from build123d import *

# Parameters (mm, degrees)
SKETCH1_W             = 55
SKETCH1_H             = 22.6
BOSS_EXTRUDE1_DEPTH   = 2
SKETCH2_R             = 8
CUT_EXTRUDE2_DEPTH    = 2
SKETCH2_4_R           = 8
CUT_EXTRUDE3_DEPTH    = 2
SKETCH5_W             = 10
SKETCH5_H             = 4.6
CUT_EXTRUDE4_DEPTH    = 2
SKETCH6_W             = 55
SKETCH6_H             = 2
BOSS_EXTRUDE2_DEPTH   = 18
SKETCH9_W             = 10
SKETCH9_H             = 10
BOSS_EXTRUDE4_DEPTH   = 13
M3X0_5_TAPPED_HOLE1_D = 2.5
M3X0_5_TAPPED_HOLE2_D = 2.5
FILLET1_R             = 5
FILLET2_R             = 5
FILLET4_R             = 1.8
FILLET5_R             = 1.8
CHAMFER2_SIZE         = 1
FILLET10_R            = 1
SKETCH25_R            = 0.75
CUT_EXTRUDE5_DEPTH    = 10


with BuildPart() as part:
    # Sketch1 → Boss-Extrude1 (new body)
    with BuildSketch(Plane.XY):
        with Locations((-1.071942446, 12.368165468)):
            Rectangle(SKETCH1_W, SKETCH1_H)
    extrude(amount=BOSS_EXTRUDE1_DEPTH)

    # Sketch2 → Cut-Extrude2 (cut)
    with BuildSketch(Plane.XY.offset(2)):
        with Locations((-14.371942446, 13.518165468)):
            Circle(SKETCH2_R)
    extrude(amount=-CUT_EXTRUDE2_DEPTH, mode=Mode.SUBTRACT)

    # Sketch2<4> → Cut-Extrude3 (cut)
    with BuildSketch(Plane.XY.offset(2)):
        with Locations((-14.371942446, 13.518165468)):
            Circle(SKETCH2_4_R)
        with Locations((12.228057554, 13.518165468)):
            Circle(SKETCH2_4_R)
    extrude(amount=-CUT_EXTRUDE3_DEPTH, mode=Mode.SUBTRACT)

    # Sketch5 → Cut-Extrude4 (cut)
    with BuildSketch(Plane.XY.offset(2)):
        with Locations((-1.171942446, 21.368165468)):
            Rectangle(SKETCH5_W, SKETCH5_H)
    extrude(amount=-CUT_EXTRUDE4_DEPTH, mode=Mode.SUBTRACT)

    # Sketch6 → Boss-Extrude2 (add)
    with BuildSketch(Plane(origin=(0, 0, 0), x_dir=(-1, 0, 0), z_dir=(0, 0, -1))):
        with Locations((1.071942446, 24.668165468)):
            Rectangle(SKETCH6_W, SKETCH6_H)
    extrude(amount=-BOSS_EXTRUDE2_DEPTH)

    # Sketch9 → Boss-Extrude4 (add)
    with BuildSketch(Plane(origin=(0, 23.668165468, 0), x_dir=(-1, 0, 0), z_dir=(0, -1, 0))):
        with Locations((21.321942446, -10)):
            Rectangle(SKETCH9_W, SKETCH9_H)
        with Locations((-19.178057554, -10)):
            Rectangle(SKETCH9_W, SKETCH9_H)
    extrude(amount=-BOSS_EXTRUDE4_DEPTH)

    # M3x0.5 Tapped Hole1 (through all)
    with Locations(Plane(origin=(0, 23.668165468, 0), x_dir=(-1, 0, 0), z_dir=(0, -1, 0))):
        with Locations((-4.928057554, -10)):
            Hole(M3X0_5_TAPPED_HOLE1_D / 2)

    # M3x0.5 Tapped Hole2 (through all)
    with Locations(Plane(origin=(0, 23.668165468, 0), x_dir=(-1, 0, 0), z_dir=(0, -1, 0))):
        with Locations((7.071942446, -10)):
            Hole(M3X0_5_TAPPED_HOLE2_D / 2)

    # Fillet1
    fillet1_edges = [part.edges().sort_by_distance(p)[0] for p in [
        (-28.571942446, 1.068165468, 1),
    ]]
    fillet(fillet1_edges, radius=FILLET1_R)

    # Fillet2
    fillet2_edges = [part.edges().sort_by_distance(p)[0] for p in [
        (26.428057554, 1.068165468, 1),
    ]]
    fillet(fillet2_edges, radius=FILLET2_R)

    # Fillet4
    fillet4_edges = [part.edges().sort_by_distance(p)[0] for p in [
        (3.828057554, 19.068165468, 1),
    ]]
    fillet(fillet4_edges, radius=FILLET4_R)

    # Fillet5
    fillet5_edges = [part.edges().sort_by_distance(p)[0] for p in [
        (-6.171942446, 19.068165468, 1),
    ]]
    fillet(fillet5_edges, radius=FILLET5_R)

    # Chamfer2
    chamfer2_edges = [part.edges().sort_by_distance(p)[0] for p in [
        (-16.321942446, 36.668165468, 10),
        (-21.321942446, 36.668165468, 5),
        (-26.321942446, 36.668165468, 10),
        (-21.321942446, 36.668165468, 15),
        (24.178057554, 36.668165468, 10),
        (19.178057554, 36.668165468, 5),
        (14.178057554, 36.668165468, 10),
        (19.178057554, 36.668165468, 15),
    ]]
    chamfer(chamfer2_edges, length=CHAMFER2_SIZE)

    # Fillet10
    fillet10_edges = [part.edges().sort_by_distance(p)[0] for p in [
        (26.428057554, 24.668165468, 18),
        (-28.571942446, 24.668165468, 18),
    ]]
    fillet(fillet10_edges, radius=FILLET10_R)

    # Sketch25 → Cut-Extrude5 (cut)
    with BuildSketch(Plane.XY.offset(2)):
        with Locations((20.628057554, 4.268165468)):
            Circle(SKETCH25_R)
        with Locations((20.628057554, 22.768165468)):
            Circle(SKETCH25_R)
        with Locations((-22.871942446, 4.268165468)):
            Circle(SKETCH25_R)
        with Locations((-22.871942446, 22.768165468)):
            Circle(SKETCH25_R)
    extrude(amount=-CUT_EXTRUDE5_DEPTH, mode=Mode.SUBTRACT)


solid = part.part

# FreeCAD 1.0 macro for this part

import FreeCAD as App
import Part
import Sketcher

V = App.Vector
Q = App.Units.Quantity


def edges_at(feature, points):
    """Names of the edges that pass closest to the given points."""
    edges = feature.Shape.Edges
    near = lambda p: min(range(len(edges)), key=lambda i: edges[i].distToShape(Part.Vertex(*p))[0])
    return sorted({f"Edge{near(p) + 1}" for p in points})


def add_polygon(sketch, points):
    """Adds a closed chain of lines whose ends are joined by coincident constraints."""
    first, n = sketch.GeometryCount, len(points)
    for a, b in zip(points, points[1:] + points[:1]):
        sketch.addGeometry(Part.LineSegment(App.Vector(*a, 0), App.Vector(*b, 0)), False)
    for i in range(n):
        sketch.addConstraint(Sketcher.Constraint("Coincident", first + i, 2, first + (i + 1) % n, 1))

doc = App.newDocument("Part")
body = doc.addObject("PartDesign::Body", "Body")

sketch1 = body.newObject("Sketcher::SketchObject", "Sketch")
sketch1.AttachmentSupport = (doc.getObject("XY_Plane"), [""])
sketch1.MapMode = "FlatFace"
add_polygon(sketch1, [(-29, 24), (-29, 1), (26, 1), (26, 24)])
sketch1.addConstraint([
    Sketcher.Constraint("Vertical", 0),
    Sketcher.Constraint("Horizontal", 1),
    Sketcher.Constraint("Vertical", 2),
    Sketcher.Constraint("Horizontal", 3),
    Sketcher.Constraint("DistanceX", 1, 1, 1, 2, Q("55 mm")),
    Sketcher.Constraint("DistanceY", 0, 2, 0, 1, Q("22.6 mm")),
    Sketcher.Constraint("DistanceX", 0, 2, -1, 1, Q("28.571942 mm")),
    Sketcher.Constraint("DistanceY", -1, 1, 0, 2, Q("1.068165 mm")),
])
pad1 = body.newObject("PartDesign::Pad", "Pad")
pad1.Profile = sketch1
pad1.Length = 2

sketch2 = body.newObject("Sketcher::SketchObject", "Sketch001")
sketch2.AttachmentSupport = (doc.getObject("XY_Plane"), [""])
sketch2.MapMode = "FlatFace"
sketch2.AttachmentOffset = App.Placement(V(0, 0, 2), App.Rotation())
sketch2.addGeometry(Part.Circle(V(-14, 14, 0), V(0, 0, 1), 8), False)
sketch2.addConstraint([
    Sketcher.Constraint("Diameter", 0, Q("16 mm")),
    Sketcher.Constraint("DistanceX", 0, 3, -1, 1, Q("14.371942 mm")),
    Sketcher.Constraint("DistanceY", -1, 1, 0, 3, Q("13.518165 mm")),
])
pocket1 = body.newObject("PartDesign::Pocket", "Pocket")
pocket1.Profile = sketch2
pocket1.Length = 2

sketch3 = body.newObject("Sketcher::SketchObject", "Sketch002")
sketch3.AttachmentSupport = (doc.getObject("XY_Plane"), [""])
sketch3.MapMode = "FlatFace"
sketch3.AttachmentOffset = App.Placement(V(0, 0, 2), App.Rotation())
sketch3.addGeometry([
    Part.Circle(V(-14, 14, 0), V(0, 0, 1), 8),
    Part.Circle(V(12, 14, 0), V(0, 0, 1), 8),
], False)
sketch3.addConstraint([
    Sketcher.Constraint("Equal", 0, 1),
    Sketcher.Constraint("Horizontal", 0, 3, 1, 3),
    Sketcher.Constraint("Diameter", 0, Q("16 mm")),
    Sketcher.Constraint("DistanceX", 0, 3, 1, 3, Q("26.6 mm")),
    Sketcher.Constraint("DistanceX", 0, 3, -1, 1, Q("14.371942 mm")),
    Sketcher.Constraint("DistanceY", -1, 1, 0, 3, Q("13.518165 mm")),
])
pocket2 = body.newObject("PartDesign::Pocket", "Pocket001")
pocket2.Profile = sketch3
pocket2.Length = 2

sketch4 = body.newObject("Sketcher::SketchObject", "Sketch003")
sketch4.AttachmentSupport = (doc.getObject("XY_Plane"), [""])
sketch4.MapMode = "FlatFace"
sketch4.AttachmentOffset = App.Placement(V(0, 0, 2), App.Rotation())
add_polygon(sketch4, [(-6.2, 23.7), (-6.2, 19.1), (3.8, 19.1), (3.8, 23.7)])
sketch4.addConstraint([
    Sketcher.Constraint("Vertical", 0),
    Sketcher.Constraint("Horizontal", 1),
    Sketcher.Constraint("Vertical", 2),
    Sketcher.Constraint("Horizontal", 3),
    Sketcher.Constraint("DistanceX", 1, 1, 1, 2, Q("10 mm")),
    Sketcher.Constraint("DistanceY", 0, 2, 0, 1, Q("4.6 mm")),
    Sketcher.Constraint("DistanceX", 0, 2, -1, 1, Q("6.171942 mm")),
    Sketcher.Constraint("DistanceY", -1, 1, 0, 2, Q("19.068165 mm")),
])
pocket3 = body.newObject("PartDesign::Pocket", "Pocket002")
pocket3.Profile = sketch4
pocket3.Length = 2

sketch5 = body.newObject("Sketcher::SketchObject", "Sketch004")
sketch5.AttachmentSupport = (doc.getObject("XY_Plane"), [""])
sketch5.MapMode = "FlatFace"
add_polygon(sketch5, [(26.4, 25.7), (26.4, 23.7), (-28.6, 23.7), (-28.6, 25.7)])
sketch5.addConstraint([
    Sketcher.Constraint("Vertical", 0),
    Sketcher.Constraint("Horizontal", 1),
    Sketcher.Constraint("Vertical", 2),
    Sketcher.Constraint("Horizontal", 3),
    Sketcher.Constraint("DistanceX", 1, 2, 1, 1, Q("55 mm")),
    Sketcher.Constraint("DistanceY", 0, 2, 0, 1, Q("2 mm")),
    Sketcher.Constraint("DistanceX", -1, 1, 0, 2, Q("26.428058 mm")),
    Sketcher.Constraint("DistanceY", -1, 1, 0, 2, Q("23.668165 mm")),
])
pad2 = body.newObject("PartDesign::Pad", "Pad001")
pad2.Profile = sketch5
pad2.Length = 18

sketch6 = body.newObject("Sketcher::SketchObject", "Sketch005")
sketch6.AttachmentSupport = (doc.getObject("XZ_Plane"), [""])
sketch6.MapMode = "FlatFace"
sketch6.AttachmentOffset = App.Placement(V(0, 0, -23.668165), App.Rotation())
add_polygon(sketch6, [(-16, 5), (-16, 15), (-26, 15), (-26, 5)])
add_polygon(sketch6, [(24, 5), (24, 15), (14, 15), (14, 5)])
sketch6.addConstraint([
    Sketcher.Constraint("Vertical", 0),
    Sketcher.Constraint("Horizontal", 1),
    Sketcher.Constraint("Vertical", 2),
    Sketcher.Constraint("Horizontal", 3),
    Sketcher.Constraint("Vertical", 4),
    Sketcher.Constraint("Horizontal", 5),
    Sketcher.Constraint("Vertical", 6),
    Sketcher.Constraint("Horizontal", 7),
    Sketcher.Constraint("Horizontal", 1, 2, 4, 2),
    Sketcher.Constraint("Horizontal", 3, 2, 6, 2),
    Sketcher.Constraint("Equal", 3, 5),
    Sketcher.Constraint("Equal", 7, 0),
    Sketcher.Constraint("DistanceX", 1, 2, 1, 1, Q("10 mm")),
    Sketcher.Constraint("DistanceY", -1, 1, 0, 2, Q("15 mm")),
    Sketcher.Constraint("DistanceX", 0, 2, 4, 2, Q("40.5 mm")),
    Sketcher.Constraint("DistanceX", 0, 2, -1, 1, Q("16.321942 mm")),
])
pad3 = body.newObject("PartDesign::Pad", "Pad002")
pad3.Profile = sketch6
pad3.Length = 13
pad3.Reversed = True

sketch7 = body.newObject("Sketcher::SketchObject", "Sketch006")
sketch7.AttachmentSupport = (doc.getObject("XZ_Plane"), [""])
sketch7.MapMode = "FlatFace"
sketch7.AttachmentOffset = App.Placement(V(0, 0, -23.668165), App.Rotation())
sketch7.addGeometry(Part.Circle(V(4.9, 10, 0), V(0, 0, 1), 1.2), False)
sketch7.addConstraint([
    Sketcher.Constraint("Diameter", 0, Q("2.5 mm")),
    Sketcher.Constraint("DistanceY", -1, 1, 0, 3, Q("10 mm")),
    Sketcher.Constraint("DistanceX", -1, 1, 0, 3, Q("4.928058 mm")),
])
doc.recompute()
hole = body.newObject("PartDesign::Hole", "Hole")
hole.Profile = sketch7
hole.ThreadType = "None"
hole.Diameter = 2.5
hole.DepthType = "ThroughAll"

sketch8 = body.newObject("Sketcher::SketchObject", "Sketch007")
sketch8.AttachmentSupport = (doc.getObject("XZ_Plane"), [""])
sketch8.MapMode = "FlatFace"
sketch8.AttachmentOffset = App.Placement(V(0, 0, -23.668165), App.Rotation())
sketch8.addGeometry(Part.Circle(V(-7.1, 10, 0), V(0, 0, 1), 1.2), False)
sketch8.addConstraint([
    Sketcher.Constraint("Diameter", 0, Q("2.5 mm")),
    Sketcher.Constraint("DistanceY", -1, 1, 0, 3, Q("10 mm")),
    Sketcher.Constraint("DistanceX", 0, 3, -1, 1, Q("7.071942 mm")),
])
doc.recompute()
hole2 = body.newObject("PartDesign::Hole", "Hole001")
hole2.Profile = sketch8
hole2.ThreadType = "None"
hole2.Diameter = 2.5
hole2.DepthType = "ThroughAll"
doc.recompute()

fillet = body.newObject("PartDesign::Fillet", "Fillet")
fillet.Base = (hole2, edges_at(hole2, [(-28.572, 1.068, 1)]))
fillet.Radius = 5
doc.recompute()

fillet2 = body.newObject("PartDesign::Fillet", "Fillet001")
fillet2.Base = (fillet, edges_at(fillet, [(26.428, 1.068, 1)]))
fillet2.Radius = 5
doc.recompute()

fillet3 = body.newObject("PartDesign::Fillet", "Fillet002")
fillet3.Base = (fillet2, edges_at(fillet2, [(3.828, 19.068, 1)]))
fillet3.Radius = 1.8
doc.recompute()

fillet4 = body.newObject("PartDesign::Fillet", "Fillet003")
fillet4.Base = (fillet3, edges_at(fillet3, [(-6.172, 19.068, 1)]))
fillet4.Radius = 1.8
doc.recompute()

chamfer = body.newObject("PartDesign::Chamfer", "Chamfer")
chamfer.Base = (fillet4, edges_at(fillet4, [
    (-16.322, 36.668, 10),
    (-21.322, 36.668, 5),
    (-26.322, 36.668, 10),
    (-21.322, 36.668, 15),
    (24.178, 36.668, 10),
    (19.178, 36.668, 5),
    (14.178, 36.668, 10),
    (19.178, 36.668, 15),
]))
chamfer.Size = 1
doc.recompute()

fillet5 = body.newObject("PartDesign::Fillet", "Fillet004")
fillet5.Base = (chamfer, edges_at(chamfer, [(26.428, 24.668, 18), (-28.572, 24.668, 18)]))
fillet5.Radius = 1

sketch9 = body.newObject("Sketcher::SketchObject", "Sketch008")
sketch9.AttachmentSupport = (doc.getObject("XY_Plane"), [""])
sketch9.MapMode = "FlatFace"
sketch9.AttachmentOffset = App.Placement(V(0, 0, 2), App.Rotation())
sketch9.addGeometry([
    Part.Circle(V(20.6, 4.3, 0), V(0, 0, 1), 0.8),
    Part.Circle(V(20.6, 22.8, 0), V(0, 0, 1), 0.8),
    Part.Circle(V(-22.9, 4.3, 0), V(0, 0, 1), 0.8),
    Part.Circle(V(-22.9, 22.8, 0), V(0, 0, 1), 0.8),
], False)
sketch9.addConstraint([
    Sketcher.Constraint("Equal", 0, 1),
    Sketcher.Constraint("Equal", 1, 2),
    Sketcher.Constraint("Equal", 2, 3),
    Sketcher.Constraint("Horizontal", 0, 3, 2, 3),
    Sketcher.Constraint("Horizontal", 1, 3, 3, 3),
    Sketcher.Constraint("Vertical", 0, 3, 1, 3),
    Sketcher.Constraint("Vertical", 2, 3, 3, 3),
    Sketcher.Constraint("Diameter", 0, Q("1.5 mm")),
    Sketcher.Constraint("DistanceY", 0, 3, 1, 3, Q("18.5 mm")),
    Sketcher.Constraint("DistanceX", 2, 3, 0, 3, Q("43.5 mm")),
    Sketcher.Constraint("DistanceX", -1, 1, 0, 3, Q("20.628058 mm")),
    Sketcher.Constraint("DistanceY", -1, 1, 0, 3, Q("4.268165 mm")),
])
pocket4 = body.newObject("PartDesign::Pocket", "Pocket003")
pocket4.Profile = sketch9
pocket4.Length = 10

doc.recompute()
